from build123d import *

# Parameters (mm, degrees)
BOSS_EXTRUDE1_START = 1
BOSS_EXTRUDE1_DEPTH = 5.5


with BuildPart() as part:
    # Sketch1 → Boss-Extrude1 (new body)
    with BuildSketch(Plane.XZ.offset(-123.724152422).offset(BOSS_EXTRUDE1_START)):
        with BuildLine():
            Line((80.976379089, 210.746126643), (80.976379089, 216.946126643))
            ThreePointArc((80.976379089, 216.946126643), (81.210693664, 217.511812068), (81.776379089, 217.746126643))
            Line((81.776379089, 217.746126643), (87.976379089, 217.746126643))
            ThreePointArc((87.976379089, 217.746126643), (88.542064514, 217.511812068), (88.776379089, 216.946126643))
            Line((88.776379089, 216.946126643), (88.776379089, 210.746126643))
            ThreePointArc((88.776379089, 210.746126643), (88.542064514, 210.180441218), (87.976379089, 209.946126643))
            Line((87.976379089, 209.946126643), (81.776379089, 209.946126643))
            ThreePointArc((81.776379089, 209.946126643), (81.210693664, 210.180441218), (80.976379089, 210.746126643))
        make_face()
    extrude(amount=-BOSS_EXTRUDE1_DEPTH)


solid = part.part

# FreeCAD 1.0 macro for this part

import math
import FreeCAD as App
import Part
import Sketcher
from FreeCAD import Vector
Q = App.Units.Quantity

doc = App.newDocument("Part")
body = doc.addObject("PartDesign::Body", "Body")

# Sketch on XZ plane
sketch1 = body.newObject("Sketcher::SketchObject", "Sketch")
sketch1.AttachmentSupport = (doc.getObject("XZ_Plane"), [""])
sketch1.MapMode = "FlatFace"
sketch1.AttachmentOffset = App.Placement(Vector(0, 0, -122.724152), App.Rotation())
sketch1.addGeometry([
    Part.LineSegment(Vector(81, 216.9, 0), Vector(81, 210.7, 0)),  # 0
    Part.ArcOfCircle(Part.Circle(Vector(81.8, 210.7, 0), Vector(0, 0, 1), 0.8), math.radians(180), math.radians(270)),  # 1
    Part.LineSegment(Vector(81.8, 209.9, 0), Vector(88, 209.9, 0)),  # 2
    Part.ArcOfCircle(Part.Circle(Vector(88, 210.7, 0), Vector(0, 0, 1), 0.8), math.radians(-90), math.radians(0)),  # 3
    Part.LineSegment(Vector(88.8, 210.7, 0), Vector(88.8, 216.9, 0)),  # 4
    Part.ArcOfCircle(Part.Circle(Vector(88, 216.9, 0), Vector(0, 0, 1), 0.8), math.radians(0), math.radians(90)),  # 5
    Part.LineSegment(Vector(88, 217.7, 0), Vector(81.8, 217.7, 0)),  # 6
    Part.ArcOfCircle(Part.Circle(Vector(81.8, 216.9, 0), Vector(0, 0, 1), 0.8), math.radians(90), math.radians(180)),  # 7
], False)
sketch1.addConstraint([
    Sketcher.Constraint("Tangent", 0, 2, 1, 1),
    Sketcher.Constraint("Tangent", 1, 2, 2, 1),
    Sketcher.Constraint("Tangent", 2, 2, 3, 1),
    Sketcher.Constraint("Tangent", 3, 2, 4, 1),
    Sketcher.Constraint("Tangent", 4, 2, 5, 1),
    Sketcher.Constraint("Tangent", 5, 2, 6, 1),
    Sketcher.Constraint("Tangent", 6, 2, 7, 1),
    Sketcher.Constraint("Tangent", 7, 2, 0, 1),
    Sketcher.Constraint("Vertical", 0),
    Sketcher.Constraint("Horizontal", 2),
    Sketcher.Constraint("Vertical", 4),
    Sketcher.Constraint("Horizontal", 6),
    Sketcher.Constraint("Equal", 1, 3),
    Sketcher.Constraint("Equal", 3, 5),
    Sketcher.Constraint("Equal", 5, 7),
    Sketcher.Constraint("Equal", 6, 0),
    Sketcher.Constraint("Radius", 1, Q("0.8 mm")),
    Sketcher.Constraint("DistanceX", 2, 1, 2, 2, Q("6.2 mm")),
    Sketcher.Constraint("DistanceX", -1, 1, 1, 3, Q("81.776379 mm")),
    Sketcher.Constraint("DistanceY", -1, 1, 1, 3, Q("210.746127 mm")),
])
pad1 = body.newObject("PartDesign::Pad", "Pad")
pad1.Profile = sketch1
pad1.Length = 5.5
pad1.Reversed = True

doc.recompute()
